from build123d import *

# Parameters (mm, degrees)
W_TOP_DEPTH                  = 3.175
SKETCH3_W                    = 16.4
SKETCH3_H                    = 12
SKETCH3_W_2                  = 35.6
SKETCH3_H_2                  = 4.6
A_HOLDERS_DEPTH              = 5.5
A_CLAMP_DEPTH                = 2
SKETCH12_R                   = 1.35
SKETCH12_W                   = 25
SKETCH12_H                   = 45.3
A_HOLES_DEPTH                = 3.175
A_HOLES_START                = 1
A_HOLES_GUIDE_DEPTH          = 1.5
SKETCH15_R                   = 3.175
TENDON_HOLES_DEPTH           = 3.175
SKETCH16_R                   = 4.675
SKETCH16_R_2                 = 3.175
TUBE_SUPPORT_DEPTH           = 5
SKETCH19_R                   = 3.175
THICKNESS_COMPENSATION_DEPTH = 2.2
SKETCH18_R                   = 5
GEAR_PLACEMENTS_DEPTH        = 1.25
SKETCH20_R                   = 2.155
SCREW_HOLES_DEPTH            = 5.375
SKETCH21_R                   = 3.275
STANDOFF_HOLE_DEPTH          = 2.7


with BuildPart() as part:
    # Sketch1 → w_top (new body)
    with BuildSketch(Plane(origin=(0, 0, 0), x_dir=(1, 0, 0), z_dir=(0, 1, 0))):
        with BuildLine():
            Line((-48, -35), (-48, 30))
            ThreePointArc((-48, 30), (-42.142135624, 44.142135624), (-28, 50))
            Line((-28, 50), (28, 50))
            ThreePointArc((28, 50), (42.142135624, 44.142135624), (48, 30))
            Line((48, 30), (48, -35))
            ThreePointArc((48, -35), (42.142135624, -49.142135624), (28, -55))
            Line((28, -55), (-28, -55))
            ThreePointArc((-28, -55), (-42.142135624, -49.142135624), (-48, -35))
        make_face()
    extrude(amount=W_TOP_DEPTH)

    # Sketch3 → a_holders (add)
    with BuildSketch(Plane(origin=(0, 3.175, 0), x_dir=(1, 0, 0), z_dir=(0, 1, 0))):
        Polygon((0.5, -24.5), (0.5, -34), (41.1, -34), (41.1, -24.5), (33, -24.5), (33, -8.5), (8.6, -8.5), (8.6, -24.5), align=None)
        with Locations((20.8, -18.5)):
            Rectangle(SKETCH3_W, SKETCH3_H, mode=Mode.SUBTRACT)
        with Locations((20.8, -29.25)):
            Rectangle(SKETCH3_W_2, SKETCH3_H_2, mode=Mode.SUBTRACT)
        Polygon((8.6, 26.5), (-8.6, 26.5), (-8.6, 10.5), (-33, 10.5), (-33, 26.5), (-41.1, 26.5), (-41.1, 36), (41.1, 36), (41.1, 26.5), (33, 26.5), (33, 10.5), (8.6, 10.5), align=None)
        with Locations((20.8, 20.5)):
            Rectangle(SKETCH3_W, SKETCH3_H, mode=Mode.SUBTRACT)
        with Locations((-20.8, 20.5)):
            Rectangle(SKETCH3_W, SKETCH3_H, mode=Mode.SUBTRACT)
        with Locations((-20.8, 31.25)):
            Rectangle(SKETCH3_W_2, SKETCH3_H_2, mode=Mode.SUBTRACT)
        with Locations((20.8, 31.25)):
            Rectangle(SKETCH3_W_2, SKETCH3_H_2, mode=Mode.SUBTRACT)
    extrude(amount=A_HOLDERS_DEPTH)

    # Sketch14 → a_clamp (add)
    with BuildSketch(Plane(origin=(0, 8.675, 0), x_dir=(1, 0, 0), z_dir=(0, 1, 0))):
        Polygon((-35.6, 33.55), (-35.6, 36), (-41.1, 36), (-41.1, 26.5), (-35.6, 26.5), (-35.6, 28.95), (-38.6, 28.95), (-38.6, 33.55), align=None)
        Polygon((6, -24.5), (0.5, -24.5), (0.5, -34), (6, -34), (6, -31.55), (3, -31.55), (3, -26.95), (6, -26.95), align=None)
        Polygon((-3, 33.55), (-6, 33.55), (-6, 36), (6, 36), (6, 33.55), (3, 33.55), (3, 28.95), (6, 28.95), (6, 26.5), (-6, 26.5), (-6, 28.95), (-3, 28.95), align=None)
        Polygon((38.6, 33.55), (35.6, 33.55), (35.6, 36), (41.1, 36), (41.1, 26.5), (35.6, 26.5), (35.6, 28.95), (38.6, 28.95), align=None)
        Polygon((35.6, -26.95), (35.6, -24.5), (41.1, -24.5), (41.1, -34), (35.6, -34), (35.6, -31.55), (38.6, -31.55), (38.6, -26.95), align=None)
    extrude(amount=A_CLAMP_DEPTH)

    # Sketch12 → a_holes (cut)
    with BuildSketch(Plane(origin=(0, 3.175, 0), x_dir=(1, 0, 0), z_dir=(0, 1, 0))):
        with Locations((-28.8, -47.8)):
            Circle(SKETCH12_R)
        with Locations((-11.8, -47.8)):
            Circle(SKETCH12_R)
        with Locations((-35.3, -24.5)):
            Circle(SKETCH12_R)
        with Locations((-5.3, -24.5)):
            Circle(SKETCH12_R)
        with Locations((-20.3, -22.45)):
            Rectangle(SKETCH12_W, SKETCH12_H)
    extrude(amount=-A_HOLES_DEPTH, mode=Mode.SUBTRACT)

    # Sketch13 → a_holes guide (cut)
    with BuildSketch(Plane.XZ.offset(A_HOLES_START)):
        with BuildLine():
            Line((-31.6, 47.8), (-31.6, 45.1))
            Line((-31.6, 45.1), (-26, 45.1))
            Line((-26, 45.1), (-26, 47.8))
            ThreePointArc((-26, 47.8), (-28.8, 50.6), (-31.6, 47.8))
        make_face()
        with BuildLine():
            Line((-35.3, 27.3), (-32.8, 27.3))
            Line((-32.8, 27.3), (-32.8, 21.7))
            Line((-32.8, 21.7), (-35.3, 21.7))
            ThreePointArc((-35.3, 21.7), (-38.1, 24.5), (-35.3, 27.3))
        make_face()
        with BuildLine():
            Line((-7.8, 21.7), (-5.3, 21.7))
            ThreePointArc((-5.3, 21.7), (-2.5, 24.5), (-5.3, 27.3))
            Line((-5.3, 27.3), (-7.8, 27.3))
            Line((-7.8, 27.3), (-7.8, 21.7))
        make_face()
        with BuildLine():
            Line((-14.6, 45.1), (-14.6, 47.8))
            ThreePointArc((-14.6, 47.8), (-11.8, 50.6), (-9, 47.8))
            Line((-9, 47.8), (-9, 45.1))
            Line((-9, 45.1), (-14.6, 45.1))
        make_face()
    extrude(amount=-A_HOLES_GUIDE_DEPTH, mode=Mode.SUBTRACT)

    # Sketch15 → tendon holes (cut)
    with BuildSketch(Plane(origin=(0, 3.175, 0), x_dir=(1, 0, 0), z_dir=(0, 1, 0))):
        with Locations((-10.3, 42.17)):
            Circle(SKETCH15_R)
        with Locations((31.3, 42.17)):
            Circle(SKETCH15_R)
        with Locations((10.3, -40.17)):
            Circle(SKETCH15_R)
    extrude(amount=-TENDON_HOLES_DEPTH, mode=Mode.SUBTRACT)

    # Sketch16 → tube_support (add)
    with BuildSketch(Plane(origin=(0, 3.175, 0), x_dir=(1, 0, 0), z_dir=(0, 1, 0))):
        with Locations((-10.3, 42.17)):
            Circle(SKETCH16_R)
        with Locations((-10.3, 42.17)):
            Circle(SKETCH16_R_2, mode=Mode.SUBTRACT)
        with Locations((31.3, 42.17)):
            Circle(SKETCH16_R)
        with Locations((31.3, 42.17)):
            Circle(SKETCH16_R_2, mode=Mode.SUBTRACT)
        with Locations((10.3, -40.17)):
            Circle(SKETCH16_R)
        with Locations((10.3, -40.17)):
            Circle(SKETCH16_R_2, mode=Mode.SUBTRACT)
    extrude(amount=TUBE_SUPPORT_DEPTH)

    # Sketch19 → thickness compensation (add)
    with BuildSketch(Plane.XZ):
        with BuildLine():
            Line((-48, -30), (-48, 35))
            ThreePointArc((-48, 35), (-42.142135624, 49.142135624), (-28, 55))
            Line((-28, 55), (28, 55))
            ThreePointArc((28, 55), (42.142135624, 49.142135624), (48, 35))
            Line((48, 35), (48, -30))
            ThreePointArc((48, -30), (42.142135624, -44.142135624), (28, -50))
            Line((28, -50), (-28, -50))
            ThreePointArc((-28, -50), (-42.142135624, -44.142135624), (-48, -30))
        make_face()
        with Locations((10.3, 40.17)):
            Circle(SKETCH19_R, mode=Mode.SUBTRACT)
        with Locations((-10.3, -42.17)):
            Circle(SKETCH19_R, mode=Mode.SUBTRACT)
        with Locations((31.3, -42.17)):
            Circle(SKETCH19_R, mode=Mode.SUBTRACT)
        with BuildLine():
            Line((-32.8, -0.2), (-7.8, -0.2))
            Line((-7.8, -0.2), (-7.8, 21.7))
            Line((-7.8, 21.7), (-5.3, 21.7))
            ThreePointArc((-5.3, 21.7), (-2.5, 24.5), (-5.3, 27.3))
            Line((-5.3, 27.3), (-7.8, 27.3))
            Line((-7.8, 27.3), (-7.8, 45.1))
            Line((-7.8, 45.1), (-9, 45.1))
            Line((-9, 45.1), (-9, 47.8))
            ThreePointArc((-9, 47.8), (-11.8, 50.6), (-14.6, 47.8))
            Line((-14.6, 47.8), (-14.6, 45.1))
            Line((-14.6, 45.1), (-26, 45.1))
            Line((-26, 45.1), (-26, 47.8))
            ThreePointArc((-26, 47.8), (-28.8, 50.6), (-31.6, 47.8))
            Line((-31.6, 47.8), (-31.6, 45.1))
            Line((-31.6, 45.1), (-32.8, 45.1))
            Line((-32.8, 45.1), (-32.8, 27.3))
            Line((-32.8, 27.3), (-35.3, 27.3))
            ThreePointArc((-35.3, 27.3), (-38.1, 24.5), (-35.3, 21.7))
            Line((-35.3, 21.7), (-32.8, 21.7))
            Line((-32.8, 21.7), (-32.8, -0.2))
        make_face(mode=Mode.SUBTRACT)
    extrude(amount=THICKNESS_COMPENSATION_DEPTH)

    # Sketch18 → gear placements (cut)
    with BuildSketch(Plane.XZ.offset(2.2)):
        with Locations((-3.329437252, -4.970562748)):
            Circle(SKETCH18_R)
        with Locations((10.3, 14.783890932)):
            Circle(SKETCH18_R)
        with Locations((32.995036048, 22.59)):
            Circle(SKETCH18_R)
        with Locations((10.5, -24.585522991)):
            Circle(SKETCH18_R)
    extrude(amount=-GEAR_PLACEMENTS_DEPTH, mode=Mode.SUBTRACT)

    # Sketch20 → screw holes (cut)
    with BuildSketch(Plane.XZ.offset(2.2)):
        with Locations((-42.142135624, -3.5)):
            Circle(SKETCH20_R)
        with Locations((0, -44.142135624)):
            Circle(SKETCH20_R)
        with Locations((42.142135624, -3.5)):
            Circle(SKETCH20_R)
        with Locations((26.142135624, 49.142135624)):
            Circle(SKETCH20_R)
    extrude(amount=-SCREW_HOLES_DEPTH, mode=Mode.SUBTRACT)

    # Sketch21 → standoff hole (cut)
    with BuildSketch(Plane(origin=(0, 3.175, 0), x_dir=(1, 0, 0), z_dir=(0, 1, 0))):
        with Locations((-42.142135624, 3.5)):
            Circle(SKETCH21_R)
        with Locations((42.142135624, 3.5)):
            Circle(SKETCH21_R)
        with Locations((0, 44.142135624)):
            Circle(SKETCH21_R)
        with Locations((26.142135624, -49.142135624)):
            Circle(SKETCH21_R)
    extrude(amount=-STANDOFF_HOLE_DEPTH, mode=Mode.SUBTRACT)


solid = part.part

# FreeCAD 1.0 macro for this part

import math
import FreeCAD as App
import Part
import Sketcher

V = App.Vector

doc = App.newDocument("Part")
body = doc.addObject("PartDesign::Body", "Body")

# Sketch on XZ plane
sketch1 = body.newObject("Sketcher::SketchObject", "Sketch")
sketch1.AttachmentSupport = (doc.getObject("XZ_Plane"), [""])
sketch1.MapMode = "FlatFace"
sketch1.addGeometry([
    Part.LineSegment(V(-48, -30, 0), V(-48, 35, 0)),  # 0
    Part.ArcOfCircle(Part.Circle(V(-28, 35, 0), V(0, 0, 1), 20), math.radians(90), math.radians(180)),  # 1
    Part.LineSegment(V(-28, 55, 0), V(28, 55, 0)),  # 2
    Part.ArcOfCircle(Part.Circle(V(28, 35, 0), V(0, 0, 1), 20), math.radians(0), math.radians(90)),  # 3
    Part.LineSegment(V(48, 35, 0), V(48, -30, 0)),  # 4
    Part.ArcOfCircle(Part.Circle(V(28, -30, 0), V(0, 0, 1), 20), math.radians(-90), math.radians(0)),  # 5
    Part.LineSegment(V(28, -50, 0), V(-28, -50, 0)),  # 6
    Part.ArcOfCircle(Part.Circle(V(-28, -30, 0), V(0, 0, 1), 20), math.radians(180), math.radians(270)),  # 7
], False)
sketch1.addConstraint([
    Sketcher.Constraint("Tangent", 0, 2, 1, 2),
    Sketcher.Constraint("Tangent", 1, 1, 2, 1),
    Sketcher.Constraint("Tangent", 2, 2, 3, 2),
    Sketcher.Constraint("Tangent", 3, 1, 4, 1),
    Sketcher.Constraint("Tangent", 4, 2, 5, 2),
    Sketcher.Constraint("Tangent", 5, 1, 6, 1),
    Sketcher.Constraint("Tangent", 6, 2, 7, 2),
    Sketcher.Constraint("Tangent", 7, 1, 0, 1),
    Sketcher.Constraint("Vertical", 0),
    Sketcher.Constraint("Horizontal", 2),
    Sketcher.Constraint("Vertical", 4),
    Sketcher.Constraint("Horizontal", 6),
    Sketcher.Constraint("Equal", 1, 3),
    Sketcher.Constraint("Equal", 3, 5),
    Sketcher.Constraint("Equal", 5, 7),
    Sketcher.Constraint("Radius", 1, 20.0),
    Sketcher.Constraint("DistanceX", 2, 1, 2, 2, 56.0),
    Sketcher.Constraint("DistanceY", 0, 1, 0, 2, 65.0),
    Sketcher.Constraint("DistanceX", 1, 3, -1, 1, 28.0),
    Sketcher.Constraint("DistanceY", -1, 1, 1, 3, 35.0),
])
pad1 = body.newObject("PartDesign::Pad", "Pad")
pad1.Profile = sketch1
pad1.Length = 3.175
pad1.Reversed = True

# Sketch on XZ plane
sketch2 = body.newObject("Sketcher::SketchObject", "Sketch001")
sketch2.AttachmentSupport = (doc.getObject("XZ_Plane"), [""])
sketch2.MapMode = "FlatFace"
sketch2.AttachmentOffset = App.Placement(V(0, 0, -3.175), App.Rotation())
sketch2.addGeometry([
    Part.LineSegment(V(0.5, 24.5, 0), V(0.5, 34, 0)),  # 0
    Part.LineSegment(V(0.5, 34, 0), V(41.1, 34, 0)),  # 1
    Part.LineSegment(V(41.1, 34, 0), V(41.1, 24.5, 0)),  # 2
    Part.LineSegment(V(41.1, 24.5, 0), V(33, 24.5, 0)),  # 3
    Part.LineSegment(V(33, 24.5, 0), V(33, 8.5, 0)),  # 4
    Part.LineSegment(V(33, 8.5, 0), V(8.6, 8.5, 0)),  # 5
    Part.LineSegment(V(8.6, 8.5, 0), V(8.6, 24.5, 0)),  # 6
    Part.LineSegment(V(8.6, 24.5, 0), V(0.5, 24.5, 0)),  # 7
    Part.LineSegment(V(38.6, 31.6, 0), V(3, 31.6, 0)),  # 8
    Part.LineSegment(V(3, 31.6, 0), V(3, 26.9, 0)),  # 9
    Part.LineSegment(V(3, 26.9, 0), V(38.6, 26.9, 0)),  # 10
    Part.LineSegment(V(38.6, 26.9, 0), V(38.6, 31.6, 0)),  # 11
    Part.LineSegment(V(29, 24.5, 0), V(12.6, 24.5, 0)),  # 12
    Part.LineSegment(V(12.6, 24.5, 0), V(12.6, 12.5, 0)),  # 13
    Part.LineSegment(V(12.6, 12.5, 0), V(29, 12.5, 0)),  # 14
    Part.LineSegment(V(29, 12.5, 0), V(29, 24.5, 0)),  # 15
    Part.LineSegment(V(-8.6, -26.5, 0), V(8.6, -26.5, 0)),  # 16
    Part.LineSegment(V(8.6, -26.5, 0), V(8.6, -10.5, 0)),  # 17
    Part.LineSegment(V(8.6, -10.5, 0), V(33, -10.5, 0)),  # 18
    Part.LineSegment(V(33, -10.5, 0), V(33, -26.5, 0)),  # 19
    Part.LineSegment(V(33, -26.5, 0), V(41.1, -26.5, 0)),  # 20
    Part.LineSegment(V(41.1, -26.5, 0), V(41.1, -36, 0)),  # 21
    Part.LineSegment(V(41.1, -36, 0), V(-41.1, -36, 0)),  # 22
    Part.LineSegment(V(-41.1, -36, 0), V(-41.1, -26.5, 0)),  # 23
    Part.LineSegment(V(-41.1, -26.5, 0), V(-33, -26.5, 0)),  # 24
    Part.LineSegment(V(-33, -26.5, 0), V(-33, -10.5, 0)),  # 25
    Part.LineSegment(V(-33, -10.5, 0), V(-8.6, -10.5, 0)),  # 26
    Part.LineSegment(V(-8.6, -10.5, 0), V(-8.6, -26.5, 0)),  # 27
    Part.LineSegment(V(12.6, -14.5, 0), V(12.6, -26.5, 0)),  # 28
    Part.LineSegment(V(12.6, -26.5, 0), V(29, -26.5, 0)),  # 29
    Part.LineSegment(V(29, -26.5, 0), V(29, -14.5, 0)),  # 30
    Part.LineSegment(V(29, -14.5, 0), V(12.6, -14.5, 0)),  # 31
    Part.LineSegment(V(-29, -14.5, 0), V(-29, -26.5, 0)),  # 32
    Part.LineSegment(V(-29, -26.5, 0), V(-12.6, -26.5, 0)),  # 33
    Part.LineSegment(V(-12.6, -26.5, 0), V(-12.6, -14.5, 0)),  # 34
    Part.LineSegment(V(-12.6, -14.5, 0), V(-29, -14.5, 0)),  # 35
    Part.LineSegment(V(3, -28.9, 0), V(3, -33.5, 0)),  # 36
    Part.LineSegment(V(3, -33.5, 0), V(38.6, -33.5, 0)),  # 37
    Part.LineSegment(V(38.6, -33.5, 0), V(38.6, -28.9, 0)),  # 38
    Part.LineSegment(V(38.6, -28.9, 0), V(3, -28.9, 0)),  # 39
    Part.LineSegment(V(-38.6, -28.9, 0), V(-38.6, -33.5, 0)),  # 40
    Part.LineSegment(V(-38.6, -33.5, 0), V(-3, -33.5, 0)),  # 41
    Part.LineSegment(V(-3, -33.5, 0), V(-3, -28.9, 0)),  # 42
    Part.LineSegment(V(-3, -28.9, 0), V(-38.6, -28.9, 0)),  # 43
], False)
sketch2.addConstraint([
    Sketcher.Constraint("Coincident", 0, 2, 1, 1),
    Sketcher.Constraint("Coincident", 1, 2, 2, 1),
    Sketcher.Constraint("Coincident", 2, 2, 3, 1),
    Sketcher.Constraint("Coincident", 3, 2, 4, 1),
    Sketcher.Constraint("Coincident", 4, 2, 5, 1),
    Sketcher.Constraint("Coincident", 5, 2, 6, 1),
    Sketcher.Constraint("Coincident", 6, 2, 7, 1),
    Sketcher.Constraint("Coincident", 7, 2, 0, 1),
    Sketcher.Constraint("Coincident", 8, 2, 9, 1),
    Sketcher.Constraint("Coincident", 9, 2, 10, 1),
    Sketcher.Constraint("Coincident", 10, 2, 11, 1),
    Sketcher.Constraint("Coincident", 11, 2, 8, 1),
    Sketcher.Constraint("Coincident", 12, 2, 13, 1),
    Sketcher.Constraint("Coincident", 13, 2, 14, 1),
    Sketcher.Constraint("Coincident", 14, 2, 15, 1),
    Sketcher.Constraint("Coincident", 15, 2, 12, 1),
    Sketcher.Constraint("Coincident", 16, 2, 17, 1),
    Sketcher.Constraint("Coincident", 17, 2, 18, 1),
    Sketcher.Constraint("Coincident", 18, 2, 19, 1),
    Sketcher.Constraint("Coincident", 19, 2, 20, 1),
    Sketcher.Constraint("Coincident", 20, 2, 21, 1),
    Sketcher.Constraint("Coincident", 21, 2, 22, 1),
    Sketcher.Constraint("Coincident", 22, 2, 23, 1),
    Sketcher.Constraint("Coincident", 23, 2, 24, 1),
    Sketcher.Constraint("Coincident", 24, 2, 25, 1),
    Sketcher.Constraint("Coincident", 25, 2, 26, 1),
    Sketcher.Constraint("Coincident", 26, 2, 27, 1),
    Sketcher.Constraint("Coincident", 27, 2, 16, 1),
    Sketcher.Constraint("Coincident", 28, 2, 29, 1),
    Sketcher.Constraint("Coincident", 29, 2, 30, 1),
    Sketcher.Constraint("Coincident", 30, 2, 31, 1),
    Sketcher.Constraint("Coincident", 31, 2, 28, 1),
    Sketcher.Constraint("Coincident", 32, 2, 33, 1),
    Sketcher.Constraint("Coincident", 33, 2, 34, 1),
    Sketcher.Constraint("Coincident", 34, 2, 35, 1),
    Sketcher.Constraint("Coincident", 35, 2, 32, 1),
    Sketcher.Constraint("Coincident", 36, 2, 37, 1),
    Sketcher.Constraint("Coincident", 37, 2, 38, 1),
    Sketcher.Constraint("Coincident", 38, 2, 39, 1),
    Sketcher.Constraint("Coincident", 39, 2, 36, 1),
    Sketcher.Constraint("Coincident", 40, 2, 41, 1),
    Sketcher.Constraint("Coincident", 41, 2, 42, 1),
    Sketcher.Constraint("Coincident", 42, 2, 43, 1),
    Sketcher.Constraint("Coincident", 43, 2, 40, 1),
    Sketcher.Constraint("Vertical", 0),
    Sketcher.Constraint("Horizontal", 1),
    Sketcher.Constraint("Vertical", 2),
    Sketcher.Constraint("Horizontal", 3),
    Sketcher.Constraint("Vertical", 4),
    Sketcher.Constraint("Horizontal", 5),
    Sketcher.Constraint("Vertical", 6),
    Sketcher.Constraint("Horizontal", 7),
    Sketcher.Constraint("Horizontal", 8),
    Sketcher.Constraint("Vertical", 9),
    Sketcher.Constraint("Horizontal", 10),
    Sketcher.Constraint("Vertical", 11),
    Sketcher.Constraint("Horizontal", 12),
    Sketcher.Constraint("Vertical", 13),
    Sketcher.Constraint("Horizontal", 14),
    Sketcher.Constraint("Vertical", 15),
    Sketcher.Constraint("Horizontal", 16),
    Sketcher.Constraint("Vertical", 17),
    Sketcher.Constraint("Horizontal", 18),
    Sketcher.Constraint("Vertical", 19),
    Sketcher.Constraint("Horizontal", 20),
    Sketcher.Constraint("Vertical", 21),
    Sketcher.Constraint("Horizontal", 22),
    Sketcher.Constraint("Vertical", 23),
    Sketcher.Constraint("Horizontal", 24),
    Sketcher.Constraint("Vertical", 25),
    Sketcher.Constraint("Horizontal", 26),
    Sketcher.Constraint("Vertical", 27),
    Sketcher.Constraint("Vertical", 28),
    Sketcher.Constraint("Horizontal", 29),
    Sketcher.Constraint("Vertical", 30),
    Sketcher.Constraint("Horizontal", 31),
    Sketcher.Constraint("Vertical", 32),
    Sketcher.Constraint("Horizontal", 33),
    Sketcher.Constraint("Vertical", 34),
    Sketcher.Constraint("Horizontal", 35),
    Sketcher.Constraint("Vertical", 36),
    Sketcher.Constraint("Horizontal", 37),
    Sketcher.Constraint("Vertical", 38),
    Sketcher.Constraint("Horizontal", 39),
    Sketcher.Constraint("Vertical", 40),
    Sketcher.Constraint("Horizontal", 41),
    Sketcher.Constraint("Vertical", 42),
    Sketcher.Constraint("Horizontal", 43),
    Sketcher.Constraint("Symmetric", 20, 2, 23, 2, -2),
    Sketcher.Constraint("Symmetric", 18, 2, 25, 2, -2),
    Sketcher.Constraint("Symmetric", 29, 2, 32, 2, -2),
    Sketcher.Constraint("Symmetric", 31, 2, 34, 2, -2),
    Sketcher.Constraint("Symmetric", 37, 2, 40, 2, -2),
    Sketcher.Constraint("Symmetric", 39, 2, 42, 2, -2),
    Sketcher.Constraint("Horizontal", 3, 2, 6, 2),
    Sketcher.Constraint("Horizontal", 7, 2, 12, 2),
    Sketcher.Constraint("Horizontal", 16, 2, 19, 2),
    Sketcher.Constraint("Horizontal", 27, 2, 28, 2),
    Sketcher.Constraint("Vertical", 6, 2, 16, 2),
    Sketcher.Constraint("Vertical", 4, 2, 18, 2),
    Sketcher.Constraint("Vertical", 2, 2, 20, 2),
    Sketcher.Constraint("Vertical", 13, 2, 28, 2),
    Sketcher.Constraint("Vertical", 15, 2, 29, 2),
    Sketcher.Constraint("Vertical", 9, 2, 36, 2),
    Sketcher.Constraint("Vertical", 11, 2, 37, 2),
    Sketcher.Constraint("Equal", 3, 7),
    Sketcher.Constraint("Equal", 18, 26),
    Sketcher.Constraint("Equal", 6, 17),
    Sketcher.Constraint("Equal", 2, 21),
    Sketcher.Constraint("Equal", 15, 28),
    Sketcher.Constraint("Equal", 11, 36),
    Sketcher.Constraint("DistanceY", 4, 2, 4, 1, 16.0),
    Sketcher.Constraint("DistanceY", 13, 2, 13, 1, 12.0),
    Sketcher.Constraint("DistanceX", 1, 1, 1, 2, 40.6),
    Sketcher.Constraint("DistanceX", 3, 2, 3, 1, 8.1),
    Sketcher.Constraint("DistanceX", 8, 2, 8, 1, 35.6),
    Sketcher.Constraint("DistanceX", 12, 2, 12, 1, 16.4),
    Sketcher.Constraint("DistanceX", 16, 1, 16, 2, 17.2),
    Sketcher.Constraint("DistanceY", 0, 1, 0, 2, 9.5),
    Sketcher.Constraint("DistanceY", 9, 2, 9, 1, 4.6),
    Sketcher.Constraint("DistanceY", -1, 1, 0, 2, 34.0),
    Sketcher.Constraint("DistanceX", -1, 1, 8, 2, 3.0),
    Sketcher.Constraint("DistanceX", -1, 1, 14, 2, 29.0),
    Sketcher.Constraint("DistanceY", 21, 2, -1, 1, 36.0),
    Sketcher.Constraint("DistanceY", -1, 1, 8, 2, 31.55),
    Sketcher.Constraint("DistanceY", 36, 2, -1, 1, 33.55),
])
pad2 = body.newObject("PartDesign::Pad", "Pad001")
pad2.Profile = sketch2
pad2.Length = 5.5
pad2.Reversed = True

# Sketch on XZ plane
sketch3 = body.newObject("Sketcher::SketchObject", "Sketch002")
sketch3.AttachmentSupport = (doc.getObject("XZ_Plane"), [""])
sketch3.MapMode = "FlatFace"
sketch3.AttachmentOffset = App.Placement(V(0, 0, -8.675), App.Rotation())
sketch3.addGeometry([
    Part.LineSegment(V(-35.6, -33.5, 0), V(-35.6, -36, 0)),  # 0
    Part.LineSegment(V(-35.6, -36, 0), V(-41.1, -36, 0)),  # 1
    Part.LineSegment(V(-41.1, -36, 0), V(-41.1, -26.5, 0)),  # 2
    Part.LineSegment(V(-41.1, -26.5, 0), V(-35.6, -26.5, 0)),  # 3
    Part.LineSegment(V(-35.6, -26.5, 0), V(-35.6, -28.9, 0)),  # 4
    Part.LineSegment(V(-35.6, -28.9, 0), V(-38.6, -28.9, 0)),  # 5
    Part.LineSegment(V(-38.6, -28.9, 0), V(-38.6, -33.5, 0)),  # 6
    Part.LineSegment(V(-38.6, -33.5, 0), V(-35.6, -33.5, 0)),  # 7
    Part.LineSegment(V(6, 24.5, 0), V(0.5, 24.5, 0)),  # 8
    Part.LineSegment(V(0.5, 24.5, 0), V(0.5, 34, 0)),  # 9
    Part.LineSegment(V(0.5, 34, 0), V(6, 34, 0)),  # 10
    Part.LineSegment(V(6, 34, 0), V(6, 31.6, 0)),  # 11
    Part.LineSegment(V(6, 31.6, 0), V(3, 31.6, 0)),  # 12
    Part.LineSegment(V(3, 31.6, 0), V(3, 26.9, 0)),  # 13
    Part.LineSegment(V(3, 26.9, 0), V(6, 26.9, 0)),  # 14
    Part.LineSegment(V(6, 26.9, 0), V(6, 24.5, 0)),  # 15
    Part.LineSegment(V(-6, -33.5, 0), V(-3, -33.5, 0)),  # 16
    Part.LineSegment(V(-3, -33.5, 0), V(-3, -28.9, 0)),  # 17
    Part.LineSegment(V(-3, -28.9, 0), V(-6, -28.9, 0)),  # 18
    Part.LineSegment(V(-6, -28.9, 0), V(-6, -26.5, 0)),  # 19
    Part.LineSegment(V(-6, -26.5, 0), V(6, -26.5, 0)),  # 20
    Part.LineSegment(V(6, -26.5, 0), V(6, -28.9, 0)),  # 21
    Part.LineSegment(V(6, -28.9, 0), V(3, -28.9, 0)),  # 22
    Part.LineSegment(V(3, -28.9, 0), V(3, -33.5, 0)),  # 23
    Part.LineSegment(V(3, -33.5, 0), V(6, -33.5, 0)),  # 24
    Part.LineSegment(V(6, -33.5, 0), V(6, -36, 0)),  # 25
    Part.LineSegment(V(6, -36, 0), V(-6, -36, 0)),  # 26
    Part.LineSegment(V(-6, -36, 0), V(-6, -33.5, 0)),  # 27
    Part.LineSegment(V(35.6, -33.5, 0), V(38.6, -33.5, 0)),  # 28
    Part.LineSegment(V(38.6, -33.5, 0), V(38.6, -28.9, 0)),  # 29
    Part.LineSegment(V(38.6, -28.9, 0), V(35.6, -28.9, 0)),  # 30
    Part.LineSegment(V(35.6, -28.9, 0), V(35.6, -26.5, 0)),  # 31
    Part.LineSegment(V(35.6, -26.5, 0), V(41.1, -26.5, 0)),  # 32
    Part.LineSegment(V(41.1, -26.5, 0), V(41.1, -36, 0)),  # 33
    Part.LineSegment(V(41.1, -36, 0), V(35.6, -36, 0)),  # 34
    Part.LineSegment(V(35.6, -36, 0), V(35.6, -33.5, 0)),  # 35
    Part.LineSegment(V(35.6, 24.5, 0), V(35.6, 26.9, 0)),  # 36
    Part.LineSegment(V(35.6, 26.9, 0), V(38.6, 26.9, 0)),  # 37
    Part.LineSegment(V(38.6, 26.9, 0), V(38.6, 31.6, 0)),  # 38
    Part.LineSegment(V(38.6, 31.6, 0), V(35.6, 31.6, 0)),  # 39
    Part.LineSegment(V(35.6, 31.6, 0), V(35.6, 34, 0)),  # 40
    Part.LineSegment(V(35.6, 34, 0), V(41.1, 34, 0)),  # 41
    Part.LineSegment(V(41.1, 34, 0), V(41.1, 24.5, 0)),  # 42
    Part.LineSegment(V(41.1, 24.5, 0), V(35.6, 24.5, 0)),  # 43
], False)
sketch3.addConstraint([
    Sketcher.Constraint("Coincident", 0, 2, 1, 1),
    Sketcher.Constraint("Coincident", 1, 2, 2, 1),
    Sketcher.Constraint("Coincident", 2, 2, 3, 1),
    Sketcher.Constraint("Coincident", 3, 2, 4, 1),
    Sketcher.Constraint("Coincident", 4, 2, 5, 1),
    Sketcher.Constraint("Coincident", 5, 2, 6, 1),
    Sketcher.Constraint("Coincident", 6, 2, 7, 1),
    Sketcher.Constraint("Coincident", 7, 2, 0, 1),
    Sketcher.Constraint("Coincident", 8, 2, 9, 1),
    Sketcher.Constraint("Coincident", 9, 2, 10, 1),
    Sketcher.Constraint("Coincident", 10, 2, 11, 1),
    Sketcher.Constraint("Coincident", 11, 2, 12, 1),
    Sketcher.Constraint("Coincident", 12, 2, 13, 1),
    Sketcher.Constraint("Coincident", 13, 2, 14, 1),
    Sketcher.Constraint("Coincident", 14, 2, 15, 1),
    Sketcher.Constraint("Coincident", 15, 2, 8, 1),
    Sketcher.Constraint("Coincident", 16, 2, 17, 1),
    Sketcher.Constraint("Coincident", 17, 2, 18, 1),
    Sketcher.Constraint("Coincident", 18, 2, 19, 1),
    Sketcher.Constraint("Coincident", 19, 2, 20, 1),
    Sketcher.Constraint("Coincident", 20, 2, 21, 1),
    Sketcher.Constraint("Coincident", 21, 2, 22, 1),
    Sketcher.Constraint("Coincident", 22, 2, 23, 1),
    Sketcher.Constraint("Coincident", 23, 2, 24, 1),
    Sketcher.Constraint("Coincident", 24, 2, 25, 1),
    Sketcher.Constraint("Coincident", 25, 2, 26, 1),
    Sketcher.Constraint("Coincident", 26, 2, 27, 1),
    Sketcher.Constraint("Coincident", 27, 2, 16, 1),
    Sketcher.Constraint("Coincident", 28, 2, 29, 1),
    Sketcher.Constraint("Coincident", 29, 2, 30, 1),
    Sketcher.Constraint("Coincident", 30, 2, 31, 1),
    Sketcher.Constraint("Coincident", 31, 2, 32, 1),
    Sketcher.Constraint("Coincident", 32, 2, 33, 1),
    Sketcher.Constraint("Coincident", 33, 2, 34, 1),
    Sketcher.Constraint("Coincident", 34, 2, 35, 1),
    Sketcher.Constraint("Coincident", 35, 2, 28, 1),
    Sketcher.Constraint("Coincident", 36, 2, 37, 1),
    Sketcher.Constraint("Coincident", 37, 2, 38, 1),
    Sketcher.Constraint("Coincident", 38, 2, 39, 1),
    Sketcher.Constraint("Coincident", 39, 2, 40, 1),
    Sketcher.Constraint("Coincident", 40, 2, 41, 1),
    Sketcher.Constraint("Coincident", 41, 2, 42, 1),
    Sketcher.Constraint("Coincident", 42, 2, 43, 1),
    Sketcher.Constraint("Coincident", 43, 2, 36, 1),
    Sketcher.Constraint("Vertical", 0),
    Sketcher.Constraint("Horizontal", 1),
    Sketcher.Constraint("Vertical", 2),
    Sketcher.Constraint("Horizontal", 3),
    Sketcher.Constraint("Vertical", 4),
    Sketcher.Constraint("Horizontal", 5),
    Sketcher.Constraint("Vertical", 6),
    Sketcher.Constraint("Horizontal", 7),
    Sketcher.Constraint("Horizontal", 8),
    Sketcher.Constraint("Vertical", 9),
    Sketcher.Constraint("Horizontal", 10),
    Sketcher.Constraint("Vertical", 11),
    Sketcher.Constraint("Horizontal", 12),
    Sketcher.Constraint("Vertical", 13),
    Sketcher.Constraint("Horizontal", 14),
    Sketcher.Constraint("Vertical", 15),
    Sketcher.Constraint("Horizontal", 16),
    Sketcher.Constraint("Vertical", 17),
    Sketcher.Constraint("Horizontal", 18),
    Sketcher.Constraint("Vertical", 19),
    Sketcher.Constraint("Horizontal", 20),
    Sketcher.Constraint("Vertical", 21),
    Sketcher.Constraint("Horizontal", 22),
    Sketcher.Constraint("Vertical", 23),
    Sketcher.Constraint("Horizontal", 24),
    Sketcher.Constraint("Vertical", 25),
    Sketcher.Constraint("Horizontal", 26),
    Sketcher.Constraint("Vertical", 27),
    Sketcher.Constraint("Horizontal", 28),
    Sketcher.Constraint("Vertical", 29),
    Sketcher.Constraint("Horizontal", 30),
    Sketcher.Constraint("Vertical", 31),
    Sketcher.Constraint("Horizontal", 32),
    Sketcher.Constraint("Vertical", 33),
    Sketcher.Constraint("Horizontal", 34),
    Sketcher.Constraint("Vertical", 35),
    Sketcher.Constraint("Vertical", 36),
    Sketcher.Constraint("Horizontal", 37),
    Sketcher.Constraint("Vertical", 38),
    Sketcher.Constraint("Horizontal", 39),
    Sketcher.Constraint("Vertical", 40),
    Sketcher.Constraint("Horizontal", 41),
    Sketcher.Constraint("Vertical", 42),
    Sketcher.Constraint("Horizontal", 43),
    Sketcher.Constraint("Symmetric", 18, 2, 21, 2, -2),
    Sketcher.Constraint("Symmetric", 16, 2, 23, 2, -2),
    Sketcher.Constraint("Symmetric", 6, 2, 28, 2, -2),
    Sketcher.Constraint("Symmetric", 4, 2, 30, 2, -2),
    Sketcher.Constraint("Symmetric", 2, 2, 32, 2, -2),
    Sketcher.Constraint("Symmetric", 0, 2, 34, 2, -2),
    Sketcher.Constraint("Horizontal", 7, 2, 16, 2),
    Sketcher.Constraint("Horizontal", 5, 2, 17, 2),
    Sketcher.Constraint("Horizontal", 3, 2, 19, 2),
    Sketcher.Constraint("Horizontal", 1, 2, 25, 2),
    Sketcher.Constraint("Horizontal", 14, 2, 36, 2),
    Sketcher.Constraint("Horizontal", 12, 2, 38, 2),
    Sketcher.Constraint("Horizontal", 10, 2, 40, 2),
    Sketcher.Constraint("Horizontal", 15, 2, 42, 2),
    Sketcher.Constraint("Vertical", 0, 2, 3, 2),
    Sketcher.Constraint("Vertical", 11, 2, 14, 2),
    Sketcher.Constraint("Vertical", 15, 2, 20, 2),
    Sketcher.Constraint("Vertical", 13, 2, 22, 2),
    Sketcher.Constraint("Vertical", 21, 2, 24, 2),
    Sketcher.Constraint("Vertical", 19, 2, 26, 2),
    Sketcher.Constraint("Vertical", 35, 2, 36, 2),
    Sketcher.Constraint("Vertical", 29, 2, 37, 2),
    Sketcher.Constraint("Vertical", 36, 2, 39, 2),
    Sketcher.Constraint("Vertical", 33, 2, 41, 2),
    Sketcher.Constraint("Equal", 3, 8),
    Sketcher.Constraint("Equal", 7, 12),
    Sketcher.Constraint("Equal", 0, 4),
    Sketcher.Constraint("Equal", 2, 9),
    Sketcher.Constraint("Equal", 4, 11),
    Sketcher.Constraint("Equal", 6, 13),
    Sketcher.Constraint("DistanceX", 5, 2, 5, 1, 3.0),
    Sketcher.Constraint("DistanceX", 20, 1, 20, 2, 12.0),
    Sketcher.Constraint("DistanceX", 1, 2, 1, 1, 5.5),
    Sketcher.Constraint("DistanceY", 2, 1, 2, 2, 9.5),
    Sketcher.Constraint("DistanceY", 6, 2, 6, 1, 4.6),
    Sketcher.Constraint("DistanceY", 0, 2, -1, 1, 36.0),
    Sketcher.Constraint("DistanceY", -1, 1, 9, 2, 34.0),
    Sketcher.Constraint("DistanceX", 0, 2, -1, 1, 35.6),
])
pad3 = body.newObject("PartDesign::Pad", "Pad002")
pad3.Profile = sketch3
pad3.Length = 2
pad3.Reversed = True

# Sketch on XZ plane
sketch4 = body.newObject("Sketcher::SketchObject", "Sketch003")
sketch4.AttachmentSupport = (doc.getObject("XZ_Plane"), [""])
sketch4.MapMode = "FlatFace"
sketch4.AttachmentOffset = App.Placement(V(0, 0, -3.175), App.Rotation())
sketch4.addGeometry([
    Part.Circle(V(-28.8, 47.8, 0), V(0, 0, 1), 1.4),  # 0
    Part.Circle(V(-11.8, 47.8, 0), V(0, 0, 1), 1.4),  # 1
    Part.Circle(V(-35.3, 24.5, 0), V(0, 0, 1), 1.4),  # 2
    Part.Circle(V(-5.3, 24.5, 0), V(0, 0, 1), 1.4),  # 3
    Part.LineSegment(V(-32.8, -0.2, 0), V(-32.8, 45.1, 0)),  # 4
    Part.LineSegment(V(-32.8, 45.1, 0), V(-7.8, 45.1, 0)),  # 5
    Part.LineSegment(V(-7.8, 45.1, 0), V(-7.8, -0.2, 0)),  # 6
    Part.LineSegment(V(-7.8, -0.2, 0), V(-32.8, -0.2, 0)),  # 7
], False)
sketch4.addConstraint([
    Sketcher.Constraint("Coincident", 4, 2, 5, 1),
    Sketcher.Constraint("Coincident", 5, 2, 6, 1),
    Sketcher.Constraint("Coincident", 6, 2, 7, 1),
    Sketcher.Constraint("Coincident", 7, 2, 4, 1),
    Sketcher.Constraint("Vertical", 4),
    Sketcher.Constraint("Horizontal", 5),
    Sketcher.Constraint("Vertical", 6),
    Sketcher.Constraint("Horizontal", 7),
    Sketcher.Constraint("Equal", 0, 1),
    Sketcher.Constraint("Equal", 1, 2),
    Sketcher.Constraint("Equal", 2, 3),
    Sketcher.Constraint("Horizontal", 0, 3, 1, 3),
    Sketcher.Constraint("Horizontal", 2, 3, 3, 3),
    Sketcher.Constraint("Diameter", 0, 2.7),
    Sketcher.Constraint("DistanceX", 5, 1, 5, 2, 25.0),
    Sketcher.Constraint("DistanceY", 4, 1, 4, 2, 45.3),
    Sketcher.Constraint("DistanceX", 0, 3, 1, 3, 17.0),
    Sketcher.Constraint("DistanceX", 2, 3, 3, 3, 30.0),
    Sketcher.Constraint("DistanceX", 4, 2, 0, 3, 4.0),
    Sketcher.Constraint("DistanceY", 6, 2, 1, 3, 48.0),
    Sketcher.Constraint("DistanceX", 0, 3, -1, 1, 28.8),
    Sketcher.Constraint("DistanceY", -1, 1, 0, 3, 47.8),
    Sketcher.Constraint("DistanceX", 2, 3, -1, 1, 35.3),
    Sketcher.Constraint("DistanceY", -1, 1, 2, 3, 24.5),
])
pocket1 = body.newObject("PartDesign::Pocket", "Pocket")
pocket1.Profile = sketch4
pocket1.Length = 3.175
pocket1.Reversed = True

# Sketch on XZ plane
sketch5 = body.newObject("Sketcher::SketchObject", "Sketch004")
sketch5.AttachmentSupport = (doc.getObject("XZ_Plane"), [""])
sketch5.MapMode = "FlatFace"
sketch5.AttachmentOffset = App.Placement(V(0, 0, 1), App.Rotation())
sketch5.addGeometry([
    Part.LineSegment(V(-31.6, 47.8, 0), V(-31.6, 45.1, 0)),  # 0
    Part.LineSegment(V(-31.6, 45.1, 0), V(-26, 45.1, 0)),  # 1
    Part.LineSegment(V(-26, 45.1, 0), V(-26, 47.8, 0)),  # 2
    Part.ArcOfCircle(Part.Circle(V(-28.8, 47.8, 0), V(0, 0, 1), 2.8), math.radians(0), math.radians(180)),  # 3
    Part.LineSegment(V(-32.8, 27.3, 0), V(-35.3, 27.3, 0)),  # 4
    Part.ArcOfCircle(Part.Circle(V(-35.3, 24.5, 0), V(0, 0, 1), 2.8), math.radians(90), math.radians(270)),  # 5
    Part.LineSegment(V(-35.3, 21.7, 0), V(-32.8, 21.7, 0)),  # 6
    Part.LineSegment(V(-32.8, 21.7, 0), V(-32.8, 27.3, 0)),  # 7
    Part.LineSegment(V(-7.8, 21.7, 0), V(-5.3, 21.7, 0)),  # 8
    Part.ArcOfCircle(Part.Circle(V(-5.3, 24.5, 0), V(0, 0, 1), 2.8), math.radians(-90), math.radians(90)),  # 9
    Part.LineSegment(V(-5.3, 27.3, 0), V(-7.8, 27.3, 0)),  # 10
    Part.LineSegment(V(-7.8, 27.3, 0), V(-7.8, 21.7, 0)),  # 11
    Part.LineSegment(V(-14.6, 47.8, 0), V(-14.6, 45.1, 0)),  # 12
    Part.LineSegment(V(-14.6, 45.1, 0), V(-9, 45.1, 0)),  # 13
    Part.LineSegment(V(-9, 45.1, 0), V(-9, 47.8, 0)),  # 14
    Part.ArcOfCircle(Part.Circle(V(-11.8, 47.8, 0), V(0, 0, 1), 2.8), math.radians(0), math.radians(180)),  # 15
], False)
sketch5.addConstraint([
    Sketcher.Constraint("Coincident", 0, 2, 1, 1),
    Sketcher.Constraint("Coincident", 1, 2, 2, 1),
    Sketcher.Constraint("Tangent", 2, 2, 3, 1),
    Sketcher.Constraint("Tangent", 3, 2, 0, 1),
    Sketcher.Constraint("Tangent", 4, 2, 5, 1),
    Sketcher.Constraint("Tangent", 5, 2, 6, 1),
    Sketcher.Constraint("Coincident", 6, 2, 7, 1),
    Sketcher.Constraint("Coincident", 7, 2, 4, 1),
    Sketcher.Constraint("Tangent", 8, 2, 9, 1),
    Sketcher.Constraint("Tangent", 9, 2, 10, 1),
    Sketcher.Constraint("Coincident", 10, 2, 11, 1),
    Sketcher.Constraint("Coincident", 11, 2, 8, 1),
    Sketcher.Constraint("Coincident", 12, 2, 13, 1),
    Sketcher.Constraint("Coincident", 13, 2, 14, 1),
    Sketcher.Constraint("Tangent", 14, 2, 15, 1),
    Sketcher.Constraint("Tangent", 15, 2, 12, 1),
    Sketcher.Constraint("Vertical", 0),
    Sketcher.Constraint("Horizontal", 1),
    Sketcher.Constraint("Vertical", 2),
    Sketcher.Constraint("Horizontal", 4),
    Sketcher.Constraint("Horizontal", 6),
    Sketcher.Constraint("Vertical", 7),
    Sketcher.Constraint("Horizontal", 8),
    Sketcher.Constraint("Horizontal", 10),
    Sketcher.Constraint("Vertical", 11),
    Sketcher.Constraint("Vertical", 12),
    Sketcher.Constraint("Horizontal", 13),
    Sketcher.Constraint("Vertical", 14),
    Sketcher.Constraint("Equal", 3, 5),
    Sketcher.Constraint("Equal", 5, 9),
    Sketcher.Constraint("Equal", 9, 15),
    Sketcher.Constraint("Horizontal", 5, 3, 9, 3),
    Sketcher.Constraint("Horizontal", 3, 3, 15, 3),
    Sketcher.Constraint("Horizontal", 1, 2, 12, 2),
    Sketcher.Constraint("Equal", 6, 8),
    Sketcher.Constraint("Radius", 3, 2.8),
    Sketcher.Constraint("DistanceX", 4, 2, 4, 1, 2.5),
    Sketcher.Constraint("DistanceY", 0, 2, 0, 1, 2.7),
    Sketcher.Constraint("DistanceX", 1, 2, -1, 1, 26.0),
    Sketcher.Constraint("DistanceX", 13, 2, -1, 1, 9.0),
    Sketcher.Constraint("DistanceX", 5, 3, 9, 3, 30.0),
    Sketcher.Constraint("DistanceX", 15, 3, 10, 2, 4.0),
    Sketcher.Constraint("DistanceY", -1, 1, 3, 3, 47.8),
    Sketcher.Constraint("DistanceY", -1, 1, 5, 3, 24.5),
])
pocket2 = body.newObject("PartDesign::Pocket", "Pocket001")
pocket2.Profile = sketch5
pocket2.Length = 1.5

# Sketch on XZ plane
sketch6 = body.newObject("Sketcher::SketchObject", "Sketch005")
sketch6.AttachmentSupport = (doc.getObject("XZ_Plane"), [""])
sketch6.MapMode = "FlatFace"
sketch6.AttachmentOffset = App.Placement(V(0, 0, -3.175), App.Rotation())
sketch6.addGeometry([
    Part.Circle(V(-10.3, -42.2, 0), V(0, 0, 1), 3.2),
    Part.Circle(V(31.3, -42.2, 0), V(0, 0, 1), 3.2),
    Part.Circle(V(10.3, 40.2, 0), V(0, 0, 1), 3.2),
], False)
sketch6.addConstraint([
    Sketcher.Constraint("Equal", 0, 1),
    Sketcher.Constraint("Equal", 1, 2),
    Sketcher.Constraint("Horizontal", 0, 3, 1, 3),
    Sketcher.Constraint("Diameter", 0, 6.35),
    Sketcher.Constraint("DistanceX", 2, 3, 1, 3, 21.0),
    Sketcher.Constraint("DistanceX", 0, 3, -1, 1, 10.3),
    Sketcher.Constraint("DistanceX", -1, 1, 1, 3, 31.3),
    Sketcher.Constraint("DistanceY", 0, 3, -1, 1, 42.17),
    Sketcher.Constraint("DistanceY", -1, 1, 2, 3, 40.17),
])
pocket3 = body.newObject("PartDesign::Pocket", "Pocket002")
pocket3.Profile = sketch6
pocket3.Length = 3.175
pocket3.Reversed = True

# Sketch on XZ plane
sketch7 = body.newObject("Sketcher::SketchObject", "Sketch006")
sketch7.AttachmentSupport = (doc.getObject("XZ_Plane"), [""])
sketch7.MapMode = "FlatFace"
sketch7.AttachmentOffset = App.Placement(V(0, 0, -3.175), App.Rotation())
sketch7.addGeometry([
    Part.Circle(V(-10.3, -42.2, 0), V(0, 0, 1), 4.7),  # 0
    Part.Circle(V(-10.3, -42.2, 0), V(0, 0, 1), 3.2),  # 1
    Part.Circle(V(31.3, -42.2, 0), V(0, 0, 1), 4.7),  # 2
    Part.Circle(V(31.3, -42.2, 0), V(0, 0, 1), 3.2),  # 3
    Part.Circle(V(10.3, 40.2, 0), V(0, 0, 1), 4.7),  # 4
    Part.Circle(V(10.3, 40.2, 0), V(0, 0, 1), 3.2),  # 5
], False)
sketch7.addConstraint([
    Sketcher.Constraint("Coincident", 1, 3, 0, 3),
    Sketcher.Constraint("Coincident", 3, 3, 2, 3),
    Sketcher.Constraint("Coincident", 5, 3, 4, 3),
    Sketcher.Constraint("Equal", 0, 2),
    Sketcher.Constraint("Equal", 1, 3),
    Sketcher.Constraint("Equal", 2, 4),
    Sketcher.Constraint("Equal", 3, 5),
    Sketcher.Constraint("Horizontal", 1, 3, 2, 3),
    Sketcher.Constraint("Diameter", 0, 9.35),
    Sketcher.Constraint("Diameter", 1, 6.35),
    Sketcher.Constraint("DistanceX", 4, 3, 2, 3, 21.0),
    Sketcher.Constraint("DistanceX", 0, 3, -1, 1, 10.3),
    Sketcher.Constraint("DistanceX", -1, 1, 2, 3, 31.3),
    Sketcher.Constraint("DistanceY", 0, 3, -1, 1, 42.17),
    Sketcher.Constraint("DistanceY", -1, 1, 4, 3, 40.17),
])
pad4 = body.newObject("PartDesign::Pad", "Pad003")
pad4.Profile = sketch7
pad4.Length = 5
pad4.Reversed = True

# Sketch on XZ plane
sketch8 = body.newObject("Sketcher::SketchObject", "Sketch007")
sketch8.AttachmentSupport = (doc.getObject("XZ_Plane"), [""])
sketch8.MapMode = "FlatFace"
sketch8.addGeometry([
    Part.LineSegment(V(-48, 35, 0), V(-48, -30, 0)),  # 0
    Part.ArcOfCircle(Part.Circle(V(-28, -30, 0), V(0, 0, 1), 20), math.radians(180), math.radians(270)),  # 1
    Part.LineSegment(V(-28, -50, 0), V(28, -50, 0)),  # 2
    Part.ArcOfCircle(Part.Circle(V(28, -30, 0), V(0, 0, 1), 20), math.radians(-90), math.radians(0)),  # 3
    Part.LineSegment(V(48, -30, 0), V(48, 35, 0)),  # 4
    Part.ArcOfCircle(Part.Circle(V(28, 35, 0), V(0, 0, 1), 20), math.radians(0), math.radians(90)),  # 5
    Part.LineSegment(V(28, 55, 0), V(-28, 55, 0)),  # 6
    Part.ArcOfCircle(Part.Circle(V(-28, 35, 0), V(0, 0, 1), 20), math.radians(90), math.radians(180)),  # 7
    Part.Circle(V(31.3, -42.2, 0), V(0, 0, 1), 3.2),  # 8
    Part.Circle(V(-10.3, -42.2, 0), V(0, 0, 1), 3.2),  # 9
    Part.Circle(V(10.3, 40.2, 0), V(0, 0, 1), 3.2),  # 10
    Part.LineSegment(V(-32.8, -0.2, 0), V(-32.8, 21.7, 0)),  # 11
    Part.LineSegment(V(-32.8, 21.7, 0), V(-35.3, 21.7, 0)),  # 12
    Part.ArcOfCircle(Part.Circle(V(-35.3, 24.5, 0), V(0, 0, 1), 2.8), math.radians(90), math.radians(270)),  # 13
    Part.LineSegment(V(-35.3, 27.3, 0), V(-32.8, 27.3, 0)),  # 14
    Part.LineSegment(V(-32.8, 27.3, 0), V(-32.8, 45.1, 0)),  # 15
    Part.LineSegment(V(-32.8, 45.1, 0), V(-31.6, 45.1, 0)),  # 16
    Part.LineSegment(V(-31.6, 45.1, 0), V(-31.6, 47.8, 0)),  # 17
    Part.ArcOfCircle(Part.Circle(V(-28.8, 47.8, 0), V(0, 0, 1), 2.8), math.radians(0), math.radians(180)),  # 18
    Part.LineSegment(V(-26, 47.8, 0), V(-26, 45.1, 0)),  # 19
    Part.LineSegment(V(-26, 45.1, 0), V(-14.6, 45.1, 0)),  # 20
    Part.LineSegment(V(-14.6, 45.1, 0), V(-14.6, 47.8, 0)),  # 21
    Part.ArcOfCircle(Part.Circle(V(-11.8, 47.8, 0), V(0, 0, 1), 2.8), math.radians(0), math.radians(180)),  # 22
    Part.LineSegment(V(-9, 47.8, 0), V(-9, 45.1, 0)),  # 23
    Part.LineSegment(V(-9, 45.1, 0), V(-7.8, 45.1, 0)),  # 24
    Part.LineSegment(V(-7.8, 45.1, 0), V(-7.8, 27.3, 0)),  # 25
    Part.LineSegment(V(-7.8, 27.3, 0), V(-5.3, 27.3, 0)),  # 26
    Part.ArcOfCircle(Part.Circle(V(-5.3, 24.5, 0), V(0, 0, 1), 2.8), math.radians(-90), math.radians(90)),  # 27
    Part.LineSegment(V(-5.3, 21.7, 0), V(-7.8, 21.7, 0)),  # 28
    Part.LineSegment(V(-7.8, 21.7, 0), V(-7.8, -0.2, 0)),  # 29
    Part.LineSegment(V(-7.8, -0.2, 0), V(-32.8, -0.2, 0)),  # 30
], False)
sketch8.addConstraint([
    Sketcher.Constraint("Tangent", 0, 2, 1, 1),
    Sketcher.Constraint("Tangent", 1, 2, 2, 1),
    Sketcher.Constraint("Tangent", 2, 2, 3, 1),
    Sketcher.Constraint("Tangent", 3, 2, 4, 1),
    Sketcher.Constraint("Tangent", 4, 2, 5, 1),
    Sketcher.Constraint("Tangent", 5, 2, 6, 1),
    Sketcher.Constraint("Tangent", 6, 2, 7, 1),
    Sketcher.Constraint("Tangent", 7, 2, 0, 1),
    Sketcher.Constraint("Coincident", 11, 2, 12, 1),
    Sketcher.Constraint("Tangent", 12, 2, 13, 2),
    Sketcher.Constraint("Tangent", 13, 1, 14, 1),
    Sketcher.Constraint("Coincident", 14, 2, 15, 1),
    Sketcher.Constraint("Coincident", 15, 2, 16, 1),
    Sketcher.Constraint("Coincident", 16, 2, 17, 1),
    Sketcher.Constraint("Tangent", 17, 2, 18, 2),
    Sketcher.Constraint("Tangent", 18, 1, 19, 1),
    Sketcher.Constraint("Coincident", 19, 2, 20, 1),
    Sketcher.Constraint("Coincident", 20, 2, 21, 1),
    Sketcher.Constraint("Tangent", 21, 2, 22, 2),
    Sketcher.Constraint("Tangent", 22, 1, 23, 1),
    Sketcher.Constraint("Coincident", 23, 2, 24, 1),
    Sketcher.Constraint("Coincident", 24, 2, 25, 1),
    Sketcher.Constraint("Coincident", 25, 2, 26, 1),
    Sketcher.Constraint("Tangent", 26, 2, 27, 2),
    Sketcher.Constraint("Tangent", 27, 1, 28, 1),
    Sketcher.Constraint("Coincident", 28, 2, 29, 1),
    Sketcher.Constraint("Coincident", 29, 2, 30, 1),
    Sketcher.Constraint("Coincident", 30, 2, 11, 1),
    Sketcher.Constraint("Vertical", 0),
    Sketcher.Constraint("Horizontal", 2),
    Sketcher.Constraint("Vertical", 4),
    Sketcher.Constraint("Horizontal", 6),
    Sketcher.Constraint("Vertical", 11),
    Sketcher.Constraint("Horizontal", 12),
    Sketcher.Constraint("Horizontal", 14),
    Sketcher.Constraint("Vertical", 15),
    Sketcher.Constraint("Horizontal", 16),
    Sketcher.Constraint("Vertical", 17),
    Sketcher.Constraint("Vertical", 19),
    Sketcher.Constraint("Horizontal", 20),
    Sketcher.Constraint("Vertical", 21),
    Sketcher.Constraint("Vertical", 23),
    Sketcher.Constraint("Horizontal", 24),
    Sketcher.Constraint("Vertical", 25),
    Sketcher.Constraint("Horizontal", 26),
    Sketcher.Constraint("Horizontal", 28),
    Sketcher.Constraint("Vertical", 29),
    Sketcher.Constraint("Horizontal", 30),
    Sketcher.Constraint("Equal", 1, 3),
    Sketcher.Constraint("Equal", 3, 5),
    Sketcher.Constraint("Equal", 5, 7),
    Sketcher.Constraint("Equal", 8, 9),
    Sketcher.Constraint("Equal", 9, 10),
    Sketcher.Constraint("Equal", 13, 18),
    Sketcher.Constraint("Equal", 18, 22),
    Sketcher.Constraint("Equal", 22, 27),
    Sketcher.Constraint("Horizontal", 8, 3, 9, 3),
    Sketcher.Constraint("Horizontal", 18, 3, 22, 3),
    Sketcher.Constraint("Horizontal", 13, 3, 27, 3),
    Sketcher.Constraint("Horizontal", 16, 2, 19, 2),
    Sketcher.Constraint("Horizontal", 20, 2, 23, 2),
    Sketcher.Constraint("Vertical", 11, 2, 14, 2),
    Sketcher.Constraint("Vertical", 25, 2, 28, 2),
    Sketcher.Constraint("Equal", 16, 24),
    Sketcher.Constraint("Equal", 14, 26),
    Sketcher.Constraint("Radius", 1, 20.0),
    Sketcher.Constraint("Radius", 13, 2.8),
    Sketcher.Constraint("Diameter", 8, 6.35),
    Sketcher.Constraint("DistanceX", 2, 1, 2, 2, 56.0),
    Sketcher.Constraint("DistanceX", 30, 2, 30, 1, 25.0),
    Sketcher.Constraint("DistanceY", 0, 2, 0, 1, 65.0),
    Sketcher.Constraint("DistanceX", 12, 2, 12, 1, 2.5),
    Sketcher.Constraint("DistanceX", 16, 1, 16, 2, 1.2),
    Sketcher.Constraint("DistanceY", 11, 1, 11, 2, 21.9),
    Sketcher.Constraint("DistanceY", 15, 1, 15, 2, 17.8),
    Sketcher.Constraint("DistanceY", 17, 1, 17, 2, 2.7),
    Sketcher.Constraint("DistanceX", 1, 3, -1, 1, 28.0),
    Sketcher.Constraint("DistanceY", 1, 3, -1, 1, 30.0),
    Sketcher.Constraint("DistanceX", 18, 1, -1, 1, 26.0),
    Sketcher.Constraint("DistanceX", 13, 3, 9, 3, 25.0),
    Sketcher.Constraint("DistanceX", -1, 1, 8, 3, 31.3),
    Sketcher.Constraint("DistanceX", -1, 1, 10, 3, 10.3),
    Sketcher.Constraint("DistanceY", -1, 1, 13, 3, 24.5),
    Sketcher.Constraint("DistanceY", 8, 3, -1, 1, 42.17),
    Sketcher.Constraint("DistanceY", -1, 1, 10, 3, 40.17),
])
pad5 = body.newObject("PartDesign::Pad", "Pad004")
pad5.Profile = sketch8
pad5.Length = 2.2

# Sketch on XZ plane
sketch9 = body.newObject("Sketcher::SketchObject", "Sketch008")
sketch9.AttachmentSupport = (doc.getObject("XZ_Plane"), [""])
sketch9.MapMode = "FlatFace"
sketch9.AttachmentOffset = App.Placement(V(0, 0, 2.2), App.Rotation())
sketch9.addGeometry([
    Part.Circle(V(-3, -5, 0), V(0, 0, 1), 5),
    Part.Circle(V(10, 15, 0), V(0, 0, 1), 5),
    Part.Circle(V(33, 23, 0), V(0, 0, 1), 5),
    Part.Circle(V(10, -25, 0), V(0, 0, 1), 5),
], False)
sketch9.addConstraint([
    Sketcher.Constraint("Equal", 0, 1),
    Sketcher.Constraint("Equal", 1, 2),
    Sketcher.Constraint("Equal", 2, 3),
    Sketcher.Constraint("Diameter", 0, 10.0),
    Sketcher.Constraint("DistanceX", -1, 1, 1, 3, 10.3),
    Sketcher.Constraint("DistanceX", -1, 1, 3, 3, 10.5),
    Sketcher.Constraint("DistanceY", -1, 1, 2, 3, 22.59),
    Sketcher.Constraint("DistanceY", -1, 1, 1, 3, 14.783891),
    Sketcher.Constraint("DistanceY", 3, 3, 0, 3, 19.61496),
    Sketcher.Constraint("DistanceX", 0, 3, -1, 1, 3.329437),
    Sketcher.Constraint("DistanceY", 0, 3, -1, 1, 4.970563),
    Sketcher.Constraint("DistanceX", -1, 1, 2, 3, 32.995036),
])
pocket4 = body.newObject("PartDesign::Pocket", "Pocket003")
pocket4.Profile = sketch9
pocket4.Length = 1.25

# Sketch on XZ plane
sketch10 = body.newObject("Sketcher::SketchObject", "Sketch009")
sketch10.AttachmentSupport = (doc.getObject("XZ_Plane"), [""])
sketch10.MapMode = "FlatFace"
sketch10.AttachmentOffset = App.Placement(V(0, 0, 2.2), App.Rotation())
sketch10.addGeometry([
    Part.Circle(V(-42.1, -3.5, 0), V(0, 0, 1), 2.2),
    Part.Circle(V(0, -44.1, 0), V(0, 0, 1), 2.2),
    Part.Circle(V(42.1, -3.5, 0), V(0, 0, 1), 2.2),
    Part.Circle(V(26.1, 49.1, 0), V(0, 0, 1), 2.2),
], False)
sketch10.addConstraint([
    Sketcher.Constraint("Equal", 0, 1),
    Sketcher.Constraint("Equal", 1, 2),
    Sketcher.Constraint("Equal", 2, 3),
    Sketcher.Constraint("Symmetric", 0, 3, 2, 3, -2),
    Sketcher.Constraint("PointOnObject", 1, 3, -2),
    Sketcher.Constraint("Diameter", 0, 4.31),
    Sketcher.Constraint("DistanceX", 3, 3, 2, 3, 16.0),
    Sketcher.Constraint("DistanceY", 0, 3, -1, 1, 3.5),
    Sketcher.Constraint("DistanceX", 0, 3, 2, 3, 84.284271),
    Sketcher.Constraint("DistanceY", 1, 3, 3, 3, 93.284271),
    Sketcher.Constraint("DistanceY", 1, 3, -1, 1, 44.142136),
])
pocket5 = body.newObject("PartDesign::Pocket", "Pocket004")
pocket5.Profile = sketch10
pocket5.Length = 5.375

# Sketch on XZ plane
sketch11 = body.newObject("Sketcher::SketchObject", "Sketch010")
sketch11.AttachmentSupport = (doc.getObject("XZ_Plane"), [""])
sketch11.MapMode = "FlatFace"
sketch11.AttachmentOffset = App.Placement(V(0, 0, -3.175), App.Rotation())
sketch11.addGeometry([
    Part.Circle(V(-42.1, -3.5, 0), V(0, 0, 1), 3.3),
    Part.Circle(V(42.1, -3.5, 0), V(0, 0, 1), 3.3),
    Part.Circle(V(0, -44.1, 0), V(0, 0, 1), 3.3),
    Part.Circle(V(26.1, 49.1, 0), V(0, 0, 1), 3.3),
], False)
sketch11.addConstraint([
    Sketcher.Constraint("Equal", 0, 1),
    Sketcher.Constraint("Equal", 1, 2),
    Sketcher.Constraint("Equal", 2, 3),
    Sketcher.Constraint("Symmetric", 0, 3, 1, 3, -2),
    Sketcher.Constraint("PointOnObject", 2, 3, -2),
    Sketcher.Constraint("Diameter", 0, 6.55),
    Sketcher.Constraint("DistanceX", 3, 3, 1, 3, 16.0),
    Sketcher.Constraint("DistanceY", 0, 3, -1, 1, 3.5),
    Sketcher.Constraint("DistanceX", 0, 3, 1, 3, 84.284271),
    Sketcher.Constraint("DistanceY", 2, 3, 3, 3, 93.284271),
    Sketcher.Constraint("DistanceY", 2, 3, -1, 1, 44.142136),
])
pocket6 = body.newObject("PartDesign::Pocket", "Pocket005")
pocket6.Profile = sketch11
pocket6.Length = 2.7
pocket6.Reversed = True

doc.recompute()
